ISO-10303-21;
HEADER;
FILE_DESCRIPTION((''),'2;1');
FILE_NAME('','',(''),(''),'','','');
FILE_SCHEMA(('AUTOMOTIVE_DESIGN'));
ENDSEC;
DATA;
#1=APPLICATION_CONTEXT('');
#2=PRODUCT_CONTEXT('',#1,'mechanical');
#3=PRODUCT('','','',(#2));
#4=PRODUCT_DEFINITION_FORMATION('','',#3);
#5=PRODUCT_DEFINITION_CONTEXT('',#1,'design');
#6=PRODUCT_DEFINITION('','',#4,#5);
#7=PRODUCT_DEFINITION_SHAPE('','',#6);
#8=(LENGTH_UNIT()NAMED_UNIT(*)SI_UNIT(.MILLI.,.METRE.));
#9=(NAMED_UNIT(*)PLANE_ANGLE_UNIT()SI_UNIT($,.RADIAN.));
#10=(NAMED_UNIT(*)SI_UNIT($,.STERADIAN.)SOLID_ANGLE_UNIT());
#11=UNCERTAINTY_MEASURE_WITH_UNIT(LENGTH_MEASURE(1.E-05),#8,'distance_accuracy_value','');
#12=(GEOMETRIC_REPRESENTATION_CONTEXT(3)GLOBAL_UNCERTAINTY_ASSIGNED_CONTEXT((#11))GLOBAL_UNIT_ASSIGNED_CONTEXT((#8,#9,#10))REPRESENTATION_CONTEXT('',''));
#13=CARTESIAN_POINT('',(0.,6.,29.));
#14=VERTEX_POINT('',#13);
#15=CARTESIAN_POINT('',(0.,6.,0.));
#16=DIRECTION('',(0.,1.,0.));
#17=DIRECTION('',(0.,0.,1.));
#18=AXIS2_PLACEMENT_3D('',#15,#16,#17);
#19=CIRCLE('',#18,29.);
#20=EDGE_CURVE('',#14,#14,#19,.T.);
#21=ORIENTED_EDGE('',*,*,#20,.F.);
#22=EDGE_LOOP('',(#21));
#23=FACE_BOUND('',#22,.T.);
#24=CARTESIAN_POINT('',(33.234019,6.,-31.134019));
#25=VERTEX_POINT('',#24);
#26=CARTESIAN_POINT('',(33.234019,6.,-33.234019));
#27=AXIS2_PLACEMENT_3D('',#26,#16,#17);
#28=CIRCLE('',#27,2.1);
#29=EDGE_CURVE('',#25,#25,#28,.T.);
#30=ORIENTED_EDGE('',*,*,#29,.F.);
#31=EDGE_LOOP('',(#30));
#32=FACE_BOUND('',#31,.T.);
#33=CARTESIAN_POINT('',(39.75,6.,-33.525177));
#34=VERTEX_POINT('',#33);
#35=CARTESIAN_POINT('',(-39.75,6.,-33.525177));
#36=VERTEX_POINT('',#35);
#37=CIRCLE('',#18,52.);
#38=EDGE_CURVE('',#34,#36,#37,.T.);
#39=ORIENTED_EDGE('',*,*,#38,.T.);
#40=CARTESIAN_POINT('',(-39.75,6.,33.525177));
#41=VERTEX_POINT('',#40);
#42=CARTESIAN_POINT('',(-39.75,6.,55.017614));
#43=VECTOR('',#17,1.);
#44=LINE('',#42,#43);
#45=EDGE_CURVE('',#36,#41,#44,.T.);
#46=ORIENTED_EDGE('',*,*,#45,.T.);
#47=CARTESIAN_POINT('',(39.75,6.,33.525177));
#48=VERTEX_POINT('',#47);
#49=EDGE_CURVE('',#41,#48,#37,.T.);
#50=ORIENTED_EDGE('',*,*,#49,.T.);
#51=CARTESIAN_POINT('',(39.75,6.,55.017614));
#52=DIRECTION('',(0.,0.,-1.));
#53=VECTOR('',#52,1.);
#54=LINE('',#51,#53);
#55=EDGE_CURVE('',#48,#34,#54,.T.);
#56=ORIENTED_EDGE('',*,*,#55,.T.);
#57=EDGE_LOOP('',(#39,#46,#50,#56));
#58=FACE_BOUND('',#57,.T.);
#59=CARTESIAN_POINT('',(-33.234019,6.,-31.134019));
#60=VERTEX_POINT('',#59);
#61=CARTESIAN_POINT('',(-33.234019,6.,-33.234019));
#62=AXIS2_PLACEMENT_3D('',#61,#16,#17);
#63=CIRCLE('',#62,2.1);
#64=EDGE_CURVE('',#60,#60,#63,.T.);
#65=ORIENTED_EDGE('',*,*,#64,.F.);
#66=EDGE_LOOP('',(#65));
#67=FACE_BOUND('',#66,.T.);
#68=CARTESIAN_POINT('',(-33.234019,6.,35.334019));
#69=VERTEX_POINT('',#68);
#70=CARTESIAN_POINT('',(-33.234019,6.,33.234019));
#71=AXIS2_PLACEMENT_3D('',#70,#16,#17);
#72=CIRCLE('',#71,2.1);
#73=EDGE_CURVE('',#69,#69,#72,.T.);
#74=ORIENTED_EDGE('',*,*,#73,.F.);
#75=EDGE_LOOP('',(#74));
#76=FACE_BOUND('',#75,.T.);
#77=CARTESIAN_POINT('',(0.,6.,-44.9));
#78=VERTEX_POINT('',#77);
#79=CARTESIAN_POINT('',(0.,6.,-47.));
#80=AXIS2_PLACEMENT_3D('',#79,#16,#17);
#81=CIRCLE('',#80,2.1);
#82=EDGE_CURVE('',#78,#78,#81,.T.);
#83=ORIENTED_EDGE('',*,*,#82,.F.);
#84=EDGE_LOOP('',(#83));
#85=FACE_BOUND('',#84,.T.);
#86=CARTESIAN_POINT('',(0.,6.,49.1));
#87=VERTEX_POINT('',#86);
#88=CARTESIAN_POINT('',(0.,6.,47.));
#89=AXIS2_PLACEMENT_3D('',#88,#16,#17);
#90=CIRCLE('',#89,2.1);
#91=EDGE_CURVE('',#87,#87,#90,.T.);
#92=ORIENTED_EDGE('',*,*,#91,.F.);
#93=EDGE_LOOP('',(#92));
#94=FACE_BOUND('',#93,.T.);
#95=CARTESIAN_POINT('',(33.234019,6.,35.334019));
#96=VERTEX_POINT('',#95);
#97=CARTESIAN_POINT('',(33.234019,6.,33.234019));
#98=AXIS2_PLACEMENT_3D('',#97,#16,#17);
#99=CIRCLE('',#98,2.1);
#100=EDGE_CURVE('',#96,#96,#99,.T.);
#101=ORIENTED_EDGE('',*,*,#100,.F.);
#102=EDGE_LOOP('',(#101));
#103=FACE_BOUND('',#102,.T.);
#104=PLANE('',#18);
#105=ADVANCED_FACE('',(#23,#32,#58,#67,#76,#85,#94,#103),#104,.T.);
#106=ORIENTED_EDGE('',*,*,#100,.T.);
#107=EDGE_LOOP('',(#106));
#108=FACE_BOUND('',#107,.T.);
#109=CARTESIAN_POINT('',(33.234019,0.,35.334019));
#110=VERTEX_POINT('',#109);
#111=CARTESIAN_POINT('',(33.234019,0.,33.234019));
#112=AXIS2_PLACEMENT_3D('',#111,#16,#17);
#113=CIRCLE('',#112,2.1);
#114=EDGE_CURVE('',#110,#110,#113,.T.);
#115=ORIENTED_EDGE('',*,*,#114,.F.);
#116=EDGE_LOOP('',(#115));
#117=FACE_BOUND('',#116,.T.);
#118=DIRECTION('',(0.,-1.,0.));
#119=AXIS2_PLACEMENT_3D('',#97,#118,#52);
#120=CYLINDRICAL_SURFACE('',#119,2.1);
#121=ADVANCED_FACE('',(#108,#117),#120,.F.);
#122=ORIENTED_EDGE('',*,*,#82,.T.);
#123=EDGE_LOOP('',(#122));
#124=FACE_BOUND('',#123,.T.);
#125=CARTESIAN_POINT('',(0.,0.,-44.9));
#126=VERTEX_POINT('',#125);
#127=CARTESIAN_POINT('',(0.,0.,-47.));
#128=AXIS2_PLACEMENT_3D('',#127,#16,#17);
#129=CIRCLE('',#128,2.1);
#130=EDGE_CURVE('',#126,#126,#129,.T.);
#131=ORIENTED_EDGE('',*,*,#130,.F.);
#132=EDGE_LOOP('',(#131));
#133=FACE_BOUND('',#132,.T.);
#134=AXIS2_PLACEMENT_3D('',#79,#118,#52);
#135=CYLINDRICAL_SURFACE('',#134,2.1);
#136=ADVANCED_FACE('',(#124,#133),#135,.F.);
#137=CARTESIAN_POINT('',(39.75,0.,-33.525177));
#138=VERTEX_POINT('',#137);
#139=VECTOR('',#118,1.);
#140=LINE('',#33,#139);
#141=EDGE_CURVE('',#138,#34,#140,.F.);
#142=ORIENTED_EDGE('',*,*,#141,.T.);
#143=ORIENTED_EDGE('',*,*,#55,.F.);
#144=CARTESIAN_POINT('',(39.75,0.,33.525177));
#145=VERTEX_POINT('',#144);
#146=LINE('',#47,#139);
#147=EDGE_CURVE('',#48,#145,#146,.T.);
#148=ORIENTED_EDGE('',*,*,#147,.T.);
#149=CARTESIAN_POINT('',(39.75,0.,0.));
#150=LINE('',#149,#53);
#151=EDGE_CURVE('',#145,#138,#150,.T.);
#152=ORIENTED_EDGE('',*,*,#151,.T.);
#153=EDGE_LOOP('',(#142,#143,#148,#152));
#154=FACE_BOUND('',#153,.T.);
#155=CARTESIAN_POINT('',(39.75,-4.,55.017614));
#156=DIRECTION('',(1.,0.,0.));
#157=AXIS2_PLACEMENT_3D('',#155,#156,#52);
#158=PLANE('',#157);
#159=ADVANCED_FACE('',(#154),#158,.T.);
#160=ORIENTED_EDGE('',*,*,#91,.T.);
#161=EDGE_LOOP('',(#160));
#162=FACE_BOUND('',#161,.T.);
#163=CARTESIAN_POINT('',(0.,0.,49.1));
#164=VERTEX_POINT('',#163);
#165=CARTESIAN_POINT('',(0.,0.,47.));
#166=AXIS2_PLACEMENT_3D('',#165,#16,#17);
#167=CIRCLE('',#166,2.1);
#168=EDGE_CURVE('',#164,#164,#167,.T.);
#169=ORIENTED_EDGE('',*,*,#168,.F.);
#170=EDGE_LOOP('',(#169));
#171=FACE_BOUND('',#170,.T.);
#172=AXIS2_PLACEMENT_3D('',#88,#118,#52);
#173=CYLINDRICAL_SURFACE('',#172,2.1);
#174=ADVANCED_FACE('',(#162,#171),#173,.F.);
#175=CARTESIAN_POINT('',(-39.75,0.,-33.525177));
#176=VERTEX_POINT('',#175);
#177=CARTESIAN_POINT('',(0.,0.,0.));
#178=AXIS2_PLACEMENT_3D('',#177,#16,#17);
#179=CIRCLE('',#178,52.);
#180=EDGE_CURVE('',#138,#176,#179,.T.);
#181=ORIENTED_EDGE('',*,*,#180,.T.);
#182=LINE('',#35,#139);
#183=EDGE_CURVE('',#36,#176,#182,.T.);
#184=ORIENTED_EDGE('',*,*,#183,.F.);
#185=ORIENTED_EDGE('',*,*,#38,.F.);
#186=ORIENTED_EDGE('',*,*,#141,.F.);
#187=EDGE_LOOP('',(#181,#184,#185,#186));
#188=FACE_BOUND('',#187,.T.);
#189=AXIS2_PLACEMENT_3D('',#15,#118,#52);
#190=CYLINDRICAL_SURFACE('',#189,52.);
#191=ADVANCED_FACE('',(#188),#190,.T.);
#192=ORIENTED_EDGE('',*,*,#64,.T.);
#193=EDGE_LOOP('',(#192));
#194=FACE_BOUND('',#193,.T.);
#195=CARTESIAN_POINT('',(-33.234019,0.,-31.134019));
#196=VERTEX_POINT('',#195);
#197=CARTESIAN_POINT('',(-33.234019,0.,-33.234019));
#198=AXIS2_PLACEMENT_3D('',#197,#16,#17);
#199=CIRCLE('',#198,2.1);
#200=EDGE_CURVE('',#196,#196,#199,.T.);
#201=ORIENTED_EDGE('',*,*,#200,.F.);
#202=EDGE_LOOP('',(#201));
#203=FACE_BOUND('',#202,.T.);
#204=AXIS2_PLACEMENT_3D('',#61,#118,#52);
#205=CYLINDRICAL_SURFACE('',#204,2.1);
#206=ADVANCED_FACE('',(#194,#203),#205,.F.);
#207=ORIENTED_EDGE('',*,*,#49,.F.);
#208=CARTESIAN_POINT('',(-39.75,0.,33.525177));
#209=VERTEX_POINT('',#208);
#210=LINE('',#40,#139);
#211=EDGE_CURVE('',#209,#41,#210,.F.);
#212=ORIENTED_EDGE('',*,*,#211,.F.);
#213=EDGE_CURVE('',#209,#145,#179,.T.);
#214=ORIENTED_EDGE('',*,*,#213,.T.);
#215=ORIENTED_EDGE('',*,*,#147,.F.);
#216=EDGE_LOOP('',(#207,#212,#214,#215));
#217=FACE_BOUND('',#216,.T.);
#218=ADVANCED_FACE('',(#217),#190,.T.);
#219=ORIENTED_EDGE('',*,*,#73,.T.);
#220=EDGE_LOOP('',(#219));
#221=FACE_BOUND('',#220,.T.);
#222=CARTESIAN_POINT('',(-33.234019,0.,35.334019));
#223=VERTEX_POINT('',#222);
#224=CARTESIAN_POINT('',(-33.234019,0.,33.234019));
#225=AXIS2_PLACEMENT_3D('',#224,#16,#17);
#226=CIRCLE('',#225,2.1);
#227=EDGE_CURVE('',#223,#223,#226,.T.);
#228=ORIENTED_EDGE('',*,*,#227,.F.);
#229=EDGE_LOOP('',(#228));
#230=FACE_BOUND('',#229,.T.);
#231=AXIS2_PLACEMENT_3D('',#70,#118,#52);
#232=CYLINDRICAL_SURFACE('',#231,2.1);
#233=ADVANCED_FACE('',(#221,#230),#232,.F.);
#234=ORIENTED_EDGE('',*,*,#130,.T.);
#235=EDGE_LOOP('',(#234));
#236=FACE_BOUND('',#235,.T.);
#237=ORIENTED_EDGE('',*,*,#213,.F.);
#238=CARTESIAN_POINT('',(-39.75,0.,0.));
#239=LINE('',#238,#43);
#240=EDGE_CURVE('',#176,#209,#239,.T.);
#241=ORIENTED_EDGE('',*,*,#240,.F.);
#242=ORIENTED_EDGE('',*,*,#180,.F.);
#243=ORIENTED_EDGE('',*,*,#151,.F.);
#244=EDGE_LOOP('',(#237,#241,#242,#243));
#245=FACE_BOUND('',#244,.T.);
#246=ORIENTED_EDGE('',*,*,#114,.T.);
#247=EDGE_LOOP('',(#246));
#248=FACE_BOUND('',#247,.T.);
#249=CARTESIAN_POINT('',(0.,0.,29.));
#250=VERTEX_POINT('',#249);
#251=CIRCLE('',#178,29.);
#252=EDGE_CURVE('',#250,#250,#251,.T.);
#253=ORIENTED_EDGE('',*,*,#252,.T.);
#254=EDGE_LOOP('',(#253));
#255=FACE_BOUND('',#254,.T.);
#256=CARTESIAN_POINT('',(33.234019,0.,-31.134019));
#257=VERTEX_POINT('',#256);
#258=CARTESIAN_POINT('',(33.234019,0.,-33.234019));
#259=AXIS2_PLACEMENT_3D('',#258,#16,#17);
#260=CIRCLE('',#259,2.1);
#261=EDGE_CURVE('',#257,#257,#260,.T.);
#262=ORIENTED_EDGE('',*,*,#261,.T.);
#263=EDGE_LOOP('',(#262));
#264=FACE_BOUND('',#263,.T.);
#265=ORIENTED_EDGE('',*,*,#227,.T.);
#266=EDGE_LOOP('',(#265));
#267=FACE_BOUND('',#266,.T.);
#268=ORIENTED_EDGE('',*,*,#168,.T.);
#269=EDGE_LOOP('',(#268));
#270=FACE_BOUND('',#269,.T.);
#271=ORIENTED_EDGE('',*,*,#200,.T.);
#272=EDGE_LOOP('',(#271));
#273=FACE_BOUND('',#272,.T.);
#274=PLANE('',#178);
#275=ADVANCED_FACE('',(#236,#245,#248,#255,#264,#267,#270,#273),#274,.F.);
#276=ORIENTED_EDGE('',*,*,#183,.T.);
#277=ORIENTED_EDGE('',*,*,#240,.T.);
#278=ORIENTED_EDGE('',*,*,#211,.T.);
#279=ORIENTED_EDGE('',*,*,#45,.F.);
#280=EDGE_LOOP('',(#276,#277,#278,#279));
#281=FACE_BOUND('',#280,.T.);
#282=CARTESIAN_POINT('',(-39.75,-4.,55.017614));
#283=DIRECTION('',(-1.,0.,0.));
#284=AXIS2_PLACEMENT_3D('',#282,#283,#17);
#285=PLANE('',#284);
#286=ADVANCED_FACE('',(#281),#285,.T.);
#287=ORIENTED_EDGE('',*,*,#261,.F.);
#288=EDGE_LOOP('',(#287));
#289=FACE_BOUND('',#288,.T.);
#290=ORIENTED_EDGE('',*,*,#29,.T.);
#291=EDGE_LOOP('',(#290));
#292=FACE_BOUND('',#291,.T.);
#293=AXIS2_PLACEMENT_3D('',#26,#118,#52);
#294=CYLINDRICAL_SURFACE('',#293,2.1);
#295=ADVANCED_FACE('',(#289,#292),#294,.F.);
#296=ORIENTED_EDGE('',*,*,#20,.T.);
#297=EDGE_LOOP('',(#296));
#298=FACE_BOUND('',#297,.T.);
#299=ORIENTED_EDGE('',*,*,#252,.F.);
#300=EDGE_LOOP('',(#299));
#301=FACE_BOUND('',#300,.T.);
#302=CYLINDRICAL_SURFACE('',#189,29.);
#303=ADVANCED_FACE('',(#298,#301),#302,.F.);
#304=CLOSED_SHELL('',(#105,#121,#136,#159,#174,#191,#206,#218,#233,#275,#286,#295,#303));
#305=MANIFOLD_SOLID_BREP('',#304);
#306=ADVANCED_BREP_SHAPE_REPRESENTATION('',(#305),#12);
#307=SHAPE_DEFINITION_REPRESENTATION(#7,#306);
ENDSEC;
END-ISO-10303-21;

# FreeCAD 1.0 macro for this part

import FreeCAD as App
import Part
import Sketcher

doc = App.newDocument("Part")
body = doc.addObject("PartDesign::Body", "Body")

# Sketch on XZ plane
sketch1 = body.newObject("Sketcher::SketchObject", "Sketch")
sketch1.AttachmentSupport = (doc.getObject("XZ_Plane"), [""])
sketch1.MapMode = "FlatFace"
sketch1.addGeometry([
    Part.Circle(App.Vector(0, 0, 0), App.Vector(0, 0, 1), 52),  # 0
    Part.Circle(App.Vector(-33.2, -33.2, 0), App.Vector(0, 0, 1), 2.1),  # 1
    Part.Circle(App.Vector(0, -47, 0), App.Vector(0, 0, 1), 2.1),  # 2
    Part.Circle(App.Vector(-47, 0, 0), App.Vector(0, 0, 1), 2.1),  # 3
    Part.Circle(App.Vector(-33.2, 33.2, 0), App.Vector(0, 0, 1), 2.1),  # 4
    Part.Circle(App.Vector(33.2, -33.2, 0), App.Vector(0, 0, 1), 2.1),  # 5
    Part.Circle(App.Vector(47, 0, 0), App.Vector(0, 0, 1), 2.1),  # 6
    Part.Circle(App.Vector(0, 0, 0), App.Vector(0, 0, 1), 29),  # 7
    Part.Circle(App.Vector(0, 47, 0), App.Vector(0, 0, 1), 2.1),  # 8
    Part.Circle(App.Vector(33.2, 33.2, 0), App.Vector(0, 0, 1), 2.1),  # 9
], False)
sketch1.addConstraint([
    Sketcher.Constraint("Coincident", 0, 3, -1, 1),
    Sketcher.Constraint("Coincident", 7, 3, -1, 1),
    Sketcher.Constraint("Equal", 1, 2),
    Sketcher.Constraint("Equal", 2, 3),
    Sketcher.Constraint("Equal", 3, 4),
    Sketcher.Constraint("Equal", 4, 5),
    Sketcher.Constraint("Equal", 5, 6),
    Sketcher.Constraint("Equal", 6, 8),
    Sketcher.Constraint("Equal", 8, 9),
    Sketcher.Constraint("Symmetric", 4, 3, 5, 3, -1, 1),
    Sketcher.Constraint("Symmetric", 3, 3, 6, 3, -1, 1),
    Sketcher.Constraint("Symmetric", 2, 3, 8, 3, -1, 1),
    Sketcher.Constraint("Symmetric", 1, 3, 9, 3, -1, 1),
    Sketcher.Constraint("Symmetric", 1, 3, 5, 3, -2),
    Sketcher.Constraint("PointOnObject", 2, 3, -2),
    Sketcher.Constraint("PointOnObject", 3, 3, -1),
    Sketcher.Constraint("Diameter", 0, 104.0),
    Sketcher.Constraint("Diameter", 7, 58.0),
    Sketcher.Constraint("Diameter", 1, 4.2),
    Sketcher.Constraint("DistanceY", 2, 3, -1, 1, 47.0),
    Sketcher.Constraint("DistanceX", 3, 3, -1, 1, 47.0),
    Sketcher.Constraint("DistanceX", 1, 3, -1, 1, 33.234019),
    Sketcher.Constraint("DistanceY", 1, 3, -1, 1, 33.234019),
])
pad1 = body.newObject("PartDesign::Pad", "Pad")
pad1.Profile = sketch1
pad1.Length = 6
pad1.Reversed = True

# Sketch on XZ plane
sketch2 = body.newObject("Sketcher::SketchObject", "Sketch001")
sketch2.AttachmentSupport = (doc.getObject("XZ_Plane"), [""])
sketch2.MapMode = "FlatFace"
sketch2.AttachmentOffset = App.Placement(App.Vector(0, 0, -6), App.Rotation())
sketch2.addGeometry([
    Part.LineSegment(App.Vector(-90, -105, 0), App.Vector(-90, 105, 0)),  # 0
    Part.LineSegment(App.Vector(-90, 105, 0), App.Vector(90, 105, 0)),  # 1
    Part.LineSegment(App.Vector(90, 105, 0), App.Vector(90, -105, 0)),  # 2
    Part.LineSegment(App.Vector(90, -105, 0), App.Vector(-90, -105, 0)),  # 3
    Part.LineSegment(App.Vector(40, 55, 0), App.Vector(-40, 55, 0)),  # 4
    Part.LineSegment(App.Vector(-40, 55, 0), App.Vector(-40, -55, 0)),  # 5
    Part.LineSegment(App.Vector(-40, -55, 0), App.Vector(40, -55, 0)),  # 6
    Part.LineSegment(App.Vector(40, -55, 0), App.Vector(40, 55, 0)),  # 7
], False)
sketch2.addConstraint([
    Sketcher.Constraint("Coincident", 0, 2, 1, 1),
    Sketcher.Constraint("Coincident", 1, 2, 2, 1),
    Sketcher.Constraint("Coincident", 2, 2, 3, 1),
    Sketcher.Constraint("Coincident", 3, 2, 0, 1),
    Sketcher.Constraint("Coincident", 4, 2, 5, 1),
    Sketcher.Constraint("Coincident", 5, 2, 6, 1),
    Sketcher.Constraint("Coincident", 6, 2, 7, 1),
    Sketcher.Constraint("Coincident", 7, 2, 4, 1),
    Sketcher.Constraint("Vertical", 0),
    Sketcher.Constraint("Horizontal", 1),
    Sketcher.Constraint("Vertical", 2),
    Sketcher.Constraint("Horizontal", 3),
    Sketcher.Constraint("Horizontal", 4),
    Sketcher.Constraint("Vertical", 5),
    Sketcher.Constraint("Horizontal", 6),
    Sketcher.Constraint("Vertical", 7),
    Sketcher.Constraint("Symmetric", 0, 2, 2, 2, -1, 1),
    Sketcher.Constraint("Symmetric", 4, 2, 6, 2, -1, 1),
    Sketcher.Constraint("DistanceX", 1, 1, 1, 2, 179.5),
    Sketcher.Constraint("DistanceX", 4, 2, 4, 1, 79.5),
    Sketcher.Constraint("DistanceY", 4, 2, 0, 2, 50.0),
    Sketcher.Constraint("DistanceY", 0, 1, 0, 2, 210.035227),
])
pocket1 = body.newObject("PartDesign::Pocket", "Pocket")
pocket1.Profile = sketch2
pocket1.Length = 10
pocket1.Reversed = True

doc.recompute()
